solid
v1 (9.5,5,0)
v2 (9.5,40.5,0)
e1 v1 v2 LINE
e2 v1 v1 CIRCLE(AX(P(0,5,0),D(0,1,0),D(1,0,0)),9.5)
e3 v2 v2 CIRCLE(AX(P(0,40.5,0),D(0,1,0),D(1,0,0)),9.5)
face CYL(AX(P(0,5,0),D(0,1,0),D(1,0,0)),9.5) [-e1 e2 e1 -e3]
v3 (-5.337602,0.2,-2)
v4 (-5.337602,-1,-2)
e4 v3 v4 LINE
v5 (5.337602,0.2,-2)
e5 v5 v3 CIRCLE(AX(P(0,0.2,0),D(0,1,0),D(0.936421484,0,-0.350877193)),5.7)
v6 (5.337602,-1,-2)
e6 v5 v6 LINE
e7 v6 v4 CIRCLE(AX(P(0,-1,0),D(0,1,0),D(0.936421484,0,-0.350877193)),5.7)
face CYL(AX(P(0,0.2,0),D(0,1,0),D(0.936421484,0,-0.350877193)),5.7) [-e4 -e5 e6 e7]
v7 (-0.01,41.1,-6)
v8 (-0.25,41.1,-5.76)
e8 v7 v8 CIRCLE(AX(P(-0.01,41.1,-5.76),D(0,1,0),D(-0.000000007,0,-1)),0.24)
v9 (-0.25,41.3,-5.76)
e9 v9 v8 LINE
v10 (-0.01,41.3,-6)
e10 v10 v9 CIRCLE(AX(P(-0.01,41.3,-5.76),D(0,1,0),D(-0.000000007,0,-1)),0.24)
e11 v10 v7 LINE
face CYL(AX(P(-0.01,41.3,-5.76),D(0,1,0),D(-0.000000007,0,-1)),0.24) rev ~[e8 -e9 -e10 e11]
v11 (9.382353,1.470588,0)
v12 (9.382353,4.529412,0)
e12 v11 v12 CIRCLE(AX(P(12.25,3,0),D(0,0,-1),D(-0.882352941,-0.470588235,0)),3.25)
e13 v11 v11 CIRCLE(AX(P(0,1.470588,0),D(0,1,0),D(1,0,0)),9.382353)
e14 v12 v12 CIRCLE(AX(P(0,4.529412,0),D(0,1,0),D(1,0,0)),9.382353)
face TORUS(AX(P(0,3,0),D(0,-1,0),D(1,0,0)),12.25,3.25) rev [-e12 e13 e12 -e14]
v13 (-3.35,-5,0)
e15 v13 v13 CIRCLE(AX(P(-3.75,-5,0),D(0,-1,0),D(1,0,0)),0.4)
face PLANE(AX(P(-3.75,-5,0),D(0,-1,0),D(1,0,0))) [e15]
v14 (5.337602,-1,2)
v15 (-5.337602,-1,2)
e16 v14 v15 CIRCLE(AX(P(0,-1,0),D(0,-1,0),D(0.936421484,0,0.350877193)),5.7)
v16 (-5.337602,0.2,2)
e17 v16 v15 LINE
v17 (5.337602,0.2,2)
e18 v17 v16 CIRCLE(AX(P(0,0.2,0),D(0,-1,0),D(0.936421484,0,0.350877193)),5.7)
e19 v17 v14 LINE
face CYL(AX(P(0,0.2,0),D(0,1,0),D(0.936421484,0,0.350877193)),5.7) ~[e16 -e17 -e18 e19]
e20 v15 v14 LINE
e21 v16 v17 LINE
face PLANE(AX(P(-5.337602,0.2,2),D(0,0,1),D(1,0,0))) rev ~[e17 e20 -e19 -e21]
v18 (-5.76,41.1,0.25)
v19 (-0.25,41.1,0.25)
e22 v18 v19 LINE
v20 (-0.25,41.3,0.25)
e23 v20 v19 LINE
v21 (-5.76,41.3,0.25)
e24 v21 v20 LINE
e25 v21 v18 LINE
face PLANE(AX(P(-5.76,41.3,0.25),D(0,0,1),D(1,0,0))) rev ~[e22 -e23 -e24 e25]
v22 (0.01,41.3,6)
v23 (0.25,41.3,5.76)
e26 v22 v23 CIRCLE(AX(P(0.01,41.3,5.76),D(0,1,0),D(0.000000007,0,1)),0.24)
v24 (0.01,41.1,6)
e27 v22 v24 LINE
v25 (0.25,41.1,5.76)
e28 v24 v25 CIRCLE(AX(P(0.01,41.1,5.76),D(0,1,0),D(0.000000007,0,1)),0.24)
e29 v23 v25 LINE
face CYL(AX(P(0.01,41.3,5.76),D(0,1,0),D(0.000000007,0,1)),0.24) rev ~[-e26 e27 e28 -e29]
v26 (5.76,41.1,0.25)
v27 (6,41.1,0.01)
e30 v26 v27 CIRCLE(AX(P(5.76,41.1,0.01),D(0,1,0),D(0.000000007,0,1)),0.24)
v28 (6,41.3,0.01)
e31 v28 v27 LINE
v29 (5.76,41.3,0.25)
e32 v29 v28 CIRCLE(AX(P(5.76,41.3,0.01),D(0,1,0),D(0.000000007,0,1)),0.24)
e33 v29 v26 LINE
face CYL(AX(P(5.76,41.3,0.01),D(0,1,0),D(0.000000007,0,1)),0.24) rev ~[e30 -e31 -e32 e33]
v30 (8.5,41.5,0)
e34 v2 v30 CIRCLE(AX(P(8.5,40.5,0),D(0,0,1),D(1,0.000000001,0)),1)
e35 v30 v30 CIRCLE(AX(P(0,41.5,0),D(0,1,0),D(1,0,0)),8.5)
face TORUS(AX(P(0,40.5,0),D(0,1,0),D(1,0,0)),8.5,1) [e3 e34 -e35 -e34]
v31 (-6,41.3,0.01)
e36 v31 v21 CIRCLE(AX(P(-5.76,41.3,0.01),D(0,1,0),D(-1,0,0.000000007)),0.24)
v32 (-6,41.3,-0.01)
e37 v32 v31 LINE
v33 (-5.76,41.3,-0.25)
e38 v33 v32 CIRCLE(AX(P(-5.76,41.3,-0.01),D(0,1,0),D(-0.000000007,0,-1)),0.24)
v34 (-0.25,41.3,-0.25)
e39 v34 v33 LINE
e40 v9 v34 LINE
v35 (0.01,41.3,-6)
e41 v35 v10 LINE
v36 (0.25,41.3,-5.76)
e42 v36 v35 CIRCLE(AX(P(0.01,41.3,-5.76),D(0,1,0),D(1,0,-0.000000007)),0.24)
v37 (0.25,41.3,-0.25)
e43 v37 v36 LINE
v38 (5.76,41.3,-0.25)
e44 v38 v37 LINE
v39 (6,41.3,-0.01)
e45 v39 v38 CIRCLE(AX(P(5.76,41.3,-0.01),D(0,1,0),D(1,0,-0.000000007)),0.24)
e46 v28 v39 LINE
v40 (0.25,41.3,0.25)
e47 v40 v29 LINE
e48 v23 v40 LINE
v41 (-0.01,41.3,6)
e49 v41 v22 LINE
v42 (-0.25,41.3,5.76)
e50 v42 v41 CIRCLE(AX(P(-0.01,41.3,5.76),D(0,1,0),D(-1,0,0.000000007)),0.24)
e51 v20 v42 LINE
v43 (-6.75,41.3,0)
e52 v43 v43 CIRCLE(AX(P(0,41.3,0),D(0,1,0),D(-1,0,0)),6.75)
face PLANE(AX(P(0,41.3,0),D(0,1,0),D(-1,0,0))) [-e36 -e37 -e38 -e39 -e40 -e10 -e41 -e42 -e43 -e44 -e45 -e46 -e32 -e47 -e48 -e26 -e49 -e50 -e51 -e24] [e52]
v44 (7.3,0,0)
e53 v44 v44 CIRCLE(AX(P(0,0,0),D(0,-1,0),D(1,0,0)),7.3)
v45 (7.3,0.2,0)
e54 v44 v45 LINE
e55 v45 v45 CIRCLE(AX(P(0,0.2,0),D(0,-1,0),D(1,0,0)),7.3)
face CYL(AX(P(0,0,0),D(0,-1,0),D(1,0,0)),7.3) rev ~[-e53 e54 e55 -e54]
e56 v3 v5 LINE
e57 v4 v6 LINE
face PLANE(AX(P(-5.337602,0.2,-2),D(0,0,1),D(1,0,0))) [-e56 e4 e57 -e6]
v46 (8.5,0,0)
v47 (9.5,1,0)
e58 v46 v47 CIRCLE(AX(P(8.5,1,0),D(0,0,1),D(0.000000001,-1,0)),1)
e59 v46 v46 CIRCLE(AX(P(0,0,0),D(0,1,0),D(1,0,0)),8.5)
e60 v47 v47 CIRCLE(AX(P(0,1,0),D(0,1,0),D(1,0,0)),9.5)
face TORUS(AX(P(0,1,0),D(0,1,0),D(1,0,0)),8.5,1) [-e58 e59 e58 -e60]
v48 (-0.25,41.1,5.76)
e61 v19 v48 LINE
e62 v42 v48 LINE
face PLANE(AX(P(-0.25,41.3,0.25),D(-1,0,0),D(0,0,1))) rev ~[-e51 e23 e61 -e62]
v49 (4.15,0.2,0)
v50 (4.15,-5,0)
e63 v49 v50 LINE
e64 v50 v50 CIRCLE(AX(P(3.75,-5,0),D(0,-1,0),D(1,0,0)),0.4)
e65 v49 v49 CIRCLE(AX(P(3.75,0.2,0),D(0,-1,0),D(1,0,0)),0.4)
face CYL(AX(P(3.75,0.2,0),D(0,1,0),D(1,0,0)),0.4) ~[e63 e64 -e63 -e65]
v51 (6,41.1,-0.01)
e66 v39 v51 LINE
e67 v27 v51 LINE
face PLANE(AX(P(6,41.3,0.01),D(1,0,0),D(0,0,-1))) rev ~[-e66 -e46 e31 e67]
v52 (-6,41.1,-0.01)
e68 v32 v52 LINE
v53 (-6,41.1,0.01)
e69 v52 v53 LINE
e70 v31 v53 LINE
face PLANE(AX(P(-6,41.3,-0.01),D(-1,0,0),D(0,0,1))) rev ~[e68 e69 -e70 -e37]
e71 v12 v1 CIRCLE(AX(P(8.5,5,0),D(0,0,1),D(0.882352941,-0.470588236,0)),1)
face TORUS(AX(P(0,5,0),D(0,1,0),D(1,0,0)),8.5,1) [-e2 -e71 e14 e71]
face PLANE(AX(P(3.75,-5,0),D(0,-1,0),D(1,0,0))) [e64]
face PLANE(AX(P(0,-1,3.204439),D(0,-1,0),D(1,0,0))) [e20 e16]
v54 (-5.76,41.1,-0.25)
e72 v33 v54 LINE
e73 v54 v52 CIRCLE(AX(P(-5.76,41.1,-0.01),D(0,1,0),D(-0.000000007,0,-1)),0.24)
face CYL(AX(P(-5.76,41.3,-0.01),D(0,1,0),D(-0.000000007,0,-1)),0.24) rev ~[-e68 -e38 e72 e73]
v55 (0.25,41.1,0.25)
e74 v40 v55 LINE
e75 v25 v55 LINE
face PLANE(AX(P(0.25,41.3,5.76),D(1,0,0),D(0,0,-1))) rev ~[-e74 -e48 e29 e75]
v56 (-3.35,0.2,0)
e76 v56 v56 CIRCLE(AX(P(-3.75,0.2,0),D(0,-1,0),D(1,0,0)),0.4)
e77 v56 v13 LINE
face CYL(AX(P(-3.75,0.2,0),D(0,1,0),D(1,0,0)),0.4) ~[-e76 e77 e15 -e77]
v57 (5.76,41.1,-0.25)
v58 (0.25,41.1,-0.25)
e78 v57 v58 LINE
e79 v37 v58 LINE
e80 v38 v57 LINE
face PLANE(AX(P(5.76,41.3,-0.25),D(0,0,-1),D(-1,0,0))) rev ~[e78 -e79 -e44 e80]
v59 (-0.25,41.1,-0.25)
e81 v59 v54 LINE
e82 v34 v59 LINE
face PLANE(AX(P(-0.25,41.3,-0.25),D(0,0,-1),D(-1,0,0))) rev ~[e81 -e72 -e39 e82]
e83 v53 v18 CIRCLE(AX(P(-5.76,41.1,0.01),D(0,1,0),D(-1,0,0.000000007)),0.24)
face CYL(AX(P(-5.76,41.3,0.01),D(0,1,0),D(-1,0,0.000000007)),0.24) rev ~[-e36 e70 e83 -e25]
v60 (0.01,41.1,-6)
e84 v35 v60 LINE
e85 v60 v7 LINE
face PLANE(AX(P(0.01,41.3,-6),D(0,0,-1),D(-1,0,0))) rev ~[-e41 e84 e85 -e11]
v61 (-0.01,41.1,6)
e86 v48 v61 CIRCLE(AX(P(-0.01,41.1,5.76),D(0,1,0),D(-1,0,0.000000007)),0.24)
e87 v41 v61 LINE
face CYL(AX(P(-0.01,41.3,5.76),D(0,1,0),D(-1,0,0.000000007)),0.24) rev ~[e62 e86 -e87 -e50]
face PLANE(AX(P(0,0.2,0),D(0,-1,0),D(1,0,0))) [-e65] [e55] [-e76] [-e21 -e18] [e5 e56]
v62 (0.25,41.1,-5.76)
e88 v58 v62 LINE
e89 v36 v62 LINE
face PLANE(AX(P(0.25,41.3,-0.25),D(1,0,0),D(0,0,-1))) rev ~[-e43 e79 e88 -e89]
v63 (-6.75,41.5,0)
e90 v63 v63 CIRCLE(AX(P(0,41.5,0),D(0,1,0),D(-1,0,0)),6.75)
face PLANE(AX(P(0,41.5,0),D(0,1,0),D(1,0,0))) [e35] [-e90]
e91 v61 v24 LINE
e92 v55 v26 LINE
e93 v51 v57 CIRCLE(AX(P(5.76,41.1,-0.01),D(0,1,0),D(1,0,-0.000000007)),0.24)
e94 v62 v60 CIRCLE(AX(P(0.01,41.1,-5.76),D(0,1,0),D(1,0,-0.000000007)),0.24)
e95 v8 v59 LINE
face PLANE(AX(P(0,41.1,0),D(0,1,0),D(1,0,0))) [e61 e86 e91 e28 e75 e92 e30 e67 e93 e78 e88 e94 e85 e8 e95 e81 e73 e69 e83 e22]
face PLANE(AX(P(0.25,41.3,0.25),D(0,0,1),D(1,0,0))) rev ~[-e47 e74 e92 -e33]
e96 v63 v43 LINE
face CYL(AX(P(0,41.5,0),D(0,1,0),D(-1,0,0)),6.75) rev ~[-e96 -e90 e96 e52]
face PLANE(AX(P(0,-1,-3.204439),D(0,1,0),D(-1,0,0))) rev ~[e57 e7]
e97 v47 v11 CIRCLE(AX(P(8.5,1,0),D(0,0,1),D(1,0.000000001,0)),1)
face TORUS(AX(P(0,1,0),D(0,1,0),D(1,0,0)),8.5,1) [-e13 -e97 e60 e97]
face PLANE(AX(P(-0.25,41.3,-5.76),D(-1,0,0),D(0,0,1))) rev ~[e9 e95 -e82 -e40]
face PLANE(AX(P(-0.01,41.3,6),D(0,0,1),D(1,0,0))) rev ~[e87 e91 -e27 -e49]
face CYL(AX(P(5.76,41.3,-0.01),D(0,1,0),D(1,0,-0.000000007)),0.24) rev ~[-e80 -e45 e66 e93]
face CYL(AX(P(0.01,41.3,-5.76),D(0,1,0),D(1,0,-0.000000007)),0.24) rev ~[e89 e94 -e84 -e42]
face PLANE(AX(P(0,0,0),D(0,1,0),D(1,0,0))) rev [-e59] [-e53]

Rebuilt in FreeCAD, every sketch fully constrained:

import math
import FreeCAD as App
import Part
import Sketcher

V = App.Vector
Q = App.Units.Quantity

doc = App.newDocument("Part")
body = doc.addObject("PartDesign::Body", "Body")

sketch1 = body.newObject("Sketcher::SketchObject", "Sketch")
sketch1.AttachmentSupport = (doc.getObject("XY_Plane"), [""])
sketch1.MapMode = "FlatFace"
sketch1.addGeometry([
    Part.LineSegment(V(0, 0, 0), V(8.5, 0, 0)),
    Part.ArcOfCircle(Part.Circle(V(8.5, 1, 0), V(0, 0, 1), 1), math.radians(-90), math.radians(0)),
    Part.ArcOfCircle(Part.Circle(V(8.5, 1, 0), V(0, 0, 1), 1), math.radians(0), math.radians(28)),
    Part.ArcOfCircle(Part.Circle(V(12.25, 3, 0), V(0, 0, 1), 3.25), math.radians(152), math.radians(208)),
    Part.ArcOfCircle(Part.Circle(V(8.5, 5, 0), V(0, 0, 1), 1), math.radians(-28), math.radians(0)),
    Part.LineSegment(V(9.5, 5, 0), V(9.5, 40.5, 0)),
    Part.ArcOfCircle(Part.Circle(V(8.5, 40.5, 0), V(0, 0, 1), 1), math.radians(0), math.radians(90)),
    Part.LineSegment(V(8.5, 41.5, 0), V(0, 41.5, 0)),
    Part.LineSegment(V(0, 41.5, 0), V(0, 0, 0)),
], False)
sketch1.addConstraint([
    Sketcher.Constraint("Tangent", 0, 2, 1, 1),
    Sketcher.Constraint("Tangent", 1, 2, 2, 1),
    Sketcher.Constraint("Tangent", 2, 2, 3, 2),
    Sketcher.Constraint("Tangent", 3, 1, 4, 1),
    Sketcher.Constraint("Tangent", 4, 2, 5, 1),
    Sketcher.Constraint("Tangent", 5, 2, 6, 1),
    Sketcher.Constraint("Tangent", 6, 2, 7, 1),
    Sketcher.Constraint("Coincident", 7, 2, 8, 1),
    Sketcher.Constraint("Coincident", 8, 2, 0, 1),
    Sketcher.Constraint("Horizontal", 0),
    Sketcher.Constraint("Vertical", 5),
    Sketcher.Constraint("Horizontal", 7),
    Sketcher.Constraint("Vertical", 8),
    Sketcher.Constraint("Coincident", 8, 2, -1, 1),
    Sketcher.Constraint("Equal", 1, 2),
    Sketcher.Constraint("Equal", 2, 4),
    Sketcher.Constraint("Equal", 4, 6),
    Sketcher.Constraint("Horizontal", 2, 3, 1, 2),
    Sketcher.Constraint("Vertical", 2, 3, 4, 3),
    Sketcher.Constraint("Radius", 1, Q("1 mm")),
    Sketcher.Constraint("Radius", 3, Q("3.25 mm")),
    Sketcher.Constraint("DistanceX", 0, 1, 0, 2, Q("8.5 mm")),
    Sketcher.Constraint("DistanceY", 5, 1, 5, 2, Q("35.5 mm")),
    Sketcher.Constraint("DistanceY", 8, 2, 8, 1, Q("41.5 mm")),
])
revolution = body.newObject("PartDesign::Revolution", "Revolution")
revolution.Profile = sketch1
revolution.ReferenceAxis = (sketch1, ["V_Axis"])
revolution.Angle = 360

sketch2 = body.newObject("Sketcher::SketchObject", "Sketch001")
sketch2.AttachmentSupport = (doc.getObject("XZ_Plane"), [""])
sketch2.MapMode = "FlatFace"
sketch2.AttachmentOffset = App.Placement(V(0, 0, -41.5), App.Rotation())
sketch2.addGeometry(Part.Circle(V(0, 0, 0), V(0, 0, 1), 7), False)
sketch2.addConstraint([
    Sketcher.Constraint("Coincident", 0, 3, -1, 1),
    Sketcher.Constraint("Diameter", 0, Q("13.5 mm")),
])
pocket1 = body.newObject("PartDesign::Pocket", "Pocket")
pocket1.Profile = sketch2
pocket1.Length = 0.2
pocket1.Reversed = True

sketch3 = body.newObject("Sketcher::SketchObject", "Sketch002")
sketch3.AttachmentSupport = (doc.getObject("XZ_Plane"), [""])
sketch3.MapMode = "FlatFace"
sketch3.AttachmentOffset = App.Placement(V(0, 0, -41.3), App.Rotation())
sketch3.addGeometry([
    Part.LineSegment(V(-0.25, 0.25, 0), V(-0.25, 5.76, 0)),
    Part.ArcOfCircle(Part.Circle(V(-0.01, 5.76, 0), V(0, 0, 1), 0.24), math.radians(90), math.radians(180)),
    Part.LineSegment(V(-0.01, 6, 0), V(0.01, 6, 0)),
    Part.ArcOfCircle(Part.Circle(V(0.01, 5.76, 0), V(0, 0, 1), 0.24), math.radians(0), math.radians(90)),
    Part.LineSegment(V(0.25, 5.76, 0), V(0.25, 0.25, 0)),
    Part.LineSegment(V(0.25, 0.25, 0), V(5.76, 0.25, 0)),
    Part.ArcOfCircle(Part.Circle(V(5.76, 0.01, 0), V(0, 0, 1), 0.24), math.radians(0), math.radians(90)),
    Part.LineSegment(V(6, 0.01, 0), V(6, -0.01, 0)),
    Part.ArcOfCircle(Part.Circle(V(5.76, -0.01, 0), V(0, 0, 1), 0.24), math.radians(-90), math.radians(0)),
    Part.LineSegment(V(5.76, -0.25, 0), V(0.25, -0.25, 0)),
    Part.LineSegment(V(0.25, -0.25, 0), V(0.25, -5.76, 0)),
    Part.ArcOfCircle(Part.Circle(V(0.01, -5.76, 0), V(0, 0, 1), 0.24), math.radians(-90), math.radians(0)),
    Part.LineSegment(V(0.01, -6, 0), V(-0.01, -6, 0)),
    Part.ArcOfCircle(Part.Circle(V(-0.01, -5.76, 0), V(0, 0, 1), 0.24), math.radians(-180), math.radians(-90)),
    Part.LineSegment(V(-0.25, -5.76, 0), V(-0.25, -0.25, 0)),
    Part.LineSegment(V(-0.25, -0.25, 0), V(-5.76, -0.25, 0)),
    Part.ArcOfCircle(Part.Circle(V(-5.76, -0.01, 0), V(0, 0, 1), 0.24), math.radians(-180), math.radians(-90)),
    Part.LineSegment(V(-6, -0.01, 0), V(-6, 0.01, 0)),
    Part.ArcOfCircle(Part.Circle(V(-5.76, 0.01, 0), V(0, 0, 1), 0.24), math.radians(90), math.radians(180)),
    Part.LineSegment(V(-5.76, 0.25, 0), V(-0.25, 0.25, 0)),
], False)
sketch3.addConstraint([
    Sketcher.Constraint("Tangent", 0, 2, 1, 2),
    Sketcher.Constraint("Tangent", 1, 1, 2, 1),
    Sketcher.Constraint("Tangent", 2, 2, 3, 2),
    Sketcher.Constraint("Tangent", 3, 1, 4, 1),
    Sketcher.Constraint("Coincident", 4, 2, 5, 1),
    Sketcher.Constraint("Tangent", 5, 2, 6, 2),
    Sketcher.Constraint("Tangent", 6, 1, 7, 1),
    Sketcher.Constraint("Tangent", 7, 2, 8, 2),
    Sketcher.Constraint("Tangent", 8, 1, 9, 1),
    Sketcher.Constraint("Coincident", 9, 2, 10, 1),
    Sketcher.Constraint("Tangent", 10, 2, 11, 2),
    Sketcher.Constraint("Tangent", 11, 1, 12, 1),
    Sketcher.Constraint("Tangent", 12, 2, 13, 2),
    Sketcher.Constraint("Tangent", 13, 1, 14, 1),
    Sketcher.Constraint("Coincident", 14, 2, 15, 1),
    Sketcher.Constraint("Tangent", 15, 2, 16, 2),
    Sketcher.Constraint("Tangent", 16, 1, 17, 1),
    Sketcher.Constraint("Tangent", 17, 2, 18, 2),
    Sketcher.Constraint("Tangent", 18, 1, 19, 1),
    Sketcher.Constraint("Coincident", 19, 2, 0, 1),
    Sketcher.Constraint("Vertical", 0),
    Sketcher.Constraint("Horizontal", 2),
    Sketcher.Constraint("Vertical", 4),
    Sketcher.Constraint("Horizontal", 5),
    Sketcher.Constraint("Vertical", 7),
    Sketcher.Constraint("Horizontal", 9),
    Sketcher.Constraint("Vertical", 10),
    Sketcher.Constraint("Horizontal", 12),
    Sketcher.Constraint("Vertical", 14),
    Sketcher.Constraint("Horizontal", 15),
    Sketcher.Constraint("Vertical", 17),
    Sketcher.Constraint("Horizontal", 19),
    Sketcher.Constraint("Equal", 1, 3),
    Sketcher.Constraint("Equal", 3, 6),
    Sketcher.Constraint("Equal", 6, 8),
    Sketcher.Constraint("Equal", 8, 11),
    Sketcher.Constraint("Equal", 11, 13),
    Sketcher.Constraint("Equal", 13, 16),
    Sketcher.Constraint("Equal", 16, 18),
    Sketcher.Constraint("Symmetric", 1, 3, 11, 3, -1, 1),
    Sketcher.Constraint("Symmetric", 6, 3, 16, 3, -1, 1),
    Sketcher.Constraint("Symmetric", 9, 2, 14, 2, -2),
    Sketcher.Constraint("Symmetric", 4, 2, 19, 2, -2),
    Sketcher.Constraint("Equal", 19, 0),
    Sketcher.Constraint("Equal", 12, 7),
    Sketcher.Constraint("Radius", 1, Q("0.24 mm")),
    Sketcher.Constraint("DistanceY", -1, 1, 1, 1, Q("6 mm")),
    Sketcher.Constraint("DistanceX", 2, 1, 2, 2, Q("0.02 mm")),
])
pocket2 = body.newObject("PartDesign::Pocket", "Pocket001")
pocket2.Profile = sketch3
pocket2.Length = 0.2
pocket2.Reversed = True

sketch4 = body.newObject("Sketcher::SketchObject", "Sketch003")
sketch4.AttachmentSupport = (doc.getObject("XZ_Plane"), [""])
sketch4.MapMode = "FlatFace"
sketch4.addGeometry(Part.Circle(V(0, 0, 0), V(0, 0, 1), 7), False)
sketch4.addConstraint([
    Sketcher.Constraint("Coincident", 0, 3, -1, 1),
    Sketcher.Constraint("Diameter", 0, Q("14.6 mm")),
])
pocket3 = body.newObject("PartDesign::Pocket", "Pocket002")
pocket3.Profile = sketch4
pocket3.Length = 0.2

sketch5 = body.newObject("Sketcher::SketchObject", "Sketch004")
sketch5.AttachmentSupport = (doc.getObject("XZ_Plane"), [""])
sketch5.MapMode = "FlatFace"
sketch5.AttachmentOffset = App.Placement(V(0, 0, -0.2), App.Rotation())
sketch5.addGeometry([
    Part.LineSegment(V(-5, 2, 0), V(5, 2, 0)),
    Part.ArcOfCircle(Part.Circle(V(0, 0, 0), V(0, 0, 1), 6), math.radians(21), math.radians(159)),
    Part.LineSegment(V(5, -2, 0), V(-5, -2, 0)),
    Part.ArcOfCircle(Part.Circle(V(0, 0, 0), V(0, 0, 1), 6), math.radians(-159), math.radians(-21)),
], False)
sketch5.addConstraint([
    Sketcher.Constraint("Coincident", 0, 1, 1, 2),
    Sketcher.Constraint("Coincident", 1, 1, 0, 2),
    Sketcher.Constraint("Coincident", 2, 1, 3, 2),
    Sketcher.Constraint("Coincident", 3, 1, 2, 2),
    Sketcher.Constraint("Horizontal", 0),
    Sketcher.Constraint("Horizontal", 2),
    Sketcher.Constraint("Coincident", 1, 3, -1, 1),
    Sketcher.Constraint("Coincident", 3, 3, -1, 1),
    Sketcher.Constraint("Equal", 1, 3),
    Sketcher.Constraint("Vertical", 1, 1, 2, 1),
    Sketcher.Constraint("Radius", 1, Q("5.7 mm")),
    Sketcher.Constraint("DistanceY", -1, 1, 0, 1, Q("2 mm")),
])
pad1 = body.newObject("PartDesign::Pad", "Pad")
pad1.Profile = sketch5
pad1.Length = 1.2

sketch6 = body.newObject("Sketcher::SketchObject", "Sketch005")
sketch6.AttachmentSupport = (doc.getObject("XZ_Plane"), [""])
sketch6.MapMode = "FlatFace"
sketch6.AttachmentOffset = App.Placement(V(0, 0, -0.2), App.Rotation())
sketch6.addGeometry([
    Part.Circle(V(-3.75, 0, 0), V(0, 0, 1), 0.4),
    Part.Circle(V(3.75, 0, 0), V(0, 0, 1), 0.4),
], False)
sketch6.addConstraint([
    Sketcher.Constraint("Equal", 0, 1),
    Sketcher.Constraint("Symmetric", 0, 3, 1, 3, -1, 1),
    Sketcher.Constraint("PointOnObject", 0, 3, -1),
    Sketcher.Constraint("Diameter", 0, Q("0.8 mm")),
    Sketcher.Constraint("DistanceX", 0, 3, 1, 3, Q("7.5 mm")),
])
pad2 = body.newObject("PartDesign::Pad", "Pad001")
pad2.Profile = sketch6
pad2.Length = 5.2

doc.recompute()
